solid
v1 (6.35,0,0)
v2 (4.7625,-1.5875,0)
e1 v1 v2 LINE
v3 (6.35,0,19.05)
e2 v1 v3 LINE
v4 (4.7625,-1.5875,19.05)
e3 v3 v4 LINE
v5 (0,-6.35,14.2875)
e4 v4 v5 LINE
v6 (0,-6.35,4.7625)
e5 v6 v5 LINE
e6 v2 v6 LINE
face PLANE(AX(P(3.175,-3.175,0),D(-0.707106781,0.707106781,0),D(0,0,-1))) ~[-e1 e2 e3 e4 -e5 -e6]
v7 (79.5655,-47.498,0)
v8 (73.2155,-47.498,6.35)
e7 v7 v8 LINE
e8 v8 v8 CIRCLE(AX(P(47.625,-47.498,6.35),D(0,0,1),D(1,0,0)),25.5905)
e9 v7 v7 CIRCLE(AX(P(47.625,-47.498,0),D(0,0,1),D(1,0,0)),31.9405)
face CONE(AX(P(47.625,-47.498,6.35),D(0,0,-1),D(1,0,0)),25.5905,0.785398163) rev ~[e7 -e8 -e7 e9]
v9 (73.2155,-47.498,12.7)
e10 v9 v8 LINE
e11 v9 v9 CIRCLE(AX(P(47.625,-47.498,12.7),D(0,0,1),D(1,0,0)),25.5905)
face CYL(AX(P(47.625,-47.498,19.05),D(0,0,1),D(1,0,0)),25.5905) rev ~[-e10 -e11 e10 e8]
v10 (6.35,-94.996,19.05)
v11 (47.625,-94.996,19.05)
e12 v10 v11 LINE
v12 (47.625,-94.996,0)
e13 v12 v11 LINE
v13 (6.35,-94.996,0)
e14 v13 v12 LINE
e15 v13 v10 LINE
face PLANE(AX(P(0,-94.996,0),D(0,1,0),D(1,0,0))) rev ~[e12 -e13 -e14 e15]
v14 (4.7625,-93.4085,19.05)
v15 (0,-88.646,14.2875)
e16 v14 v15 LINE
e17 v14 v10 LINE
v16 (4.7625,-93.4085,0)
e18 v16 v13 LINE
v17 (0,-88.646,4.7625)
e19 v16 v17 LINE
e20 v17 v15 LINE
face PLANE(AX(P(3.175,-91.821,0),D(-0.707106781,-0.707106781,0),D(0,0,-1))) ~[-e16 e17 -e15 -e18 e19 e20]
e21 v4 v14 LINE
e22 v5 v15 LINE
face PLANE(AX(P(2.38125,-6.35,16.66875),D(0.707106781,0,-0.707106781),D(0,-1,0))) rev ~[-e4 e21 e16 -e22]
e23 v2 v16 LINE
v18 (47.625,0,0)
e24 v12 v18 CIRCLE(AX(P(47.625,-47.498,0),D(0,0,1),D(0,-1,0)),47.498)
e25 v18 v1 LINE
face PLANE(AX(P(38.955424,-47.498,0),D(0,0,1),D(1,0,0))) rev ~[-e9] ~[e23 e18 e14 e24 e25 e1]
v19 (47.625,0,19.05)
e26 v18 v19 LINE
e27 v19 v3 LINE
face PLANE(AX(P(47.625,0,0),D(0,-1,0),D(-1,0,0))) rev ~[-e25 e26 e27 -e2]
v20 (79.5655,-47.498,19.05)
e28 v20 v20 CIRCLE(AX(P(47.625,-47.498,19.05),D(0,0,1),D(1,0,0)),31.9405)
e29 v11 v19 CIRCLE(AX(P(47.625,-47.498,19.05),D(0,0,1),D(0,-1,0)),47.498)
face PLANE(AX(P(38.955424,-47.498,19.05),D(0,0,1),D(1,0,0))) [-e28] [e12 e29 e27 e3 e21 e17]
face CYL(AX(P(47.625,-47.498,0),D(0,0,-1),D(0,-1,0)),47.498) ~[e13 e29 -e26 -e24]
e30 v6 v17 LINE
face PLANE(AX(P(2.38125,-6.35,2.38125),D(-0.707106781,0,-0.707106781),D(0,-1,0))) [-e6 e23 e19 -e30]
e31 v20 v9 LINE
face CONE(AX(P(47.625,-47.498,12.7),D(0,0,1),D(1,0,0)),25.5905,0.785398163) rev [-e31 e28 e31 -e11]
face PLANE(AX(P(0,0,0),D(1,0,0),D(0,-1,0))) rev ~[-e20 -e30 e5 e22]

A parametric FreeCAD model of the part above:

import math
import FreeCAD as App
import Part
import Sketcher

V = App.Vector
Q = App.Units.Quantity


def edges_at(feature, points):
    """Names of the edges that pass closest to the given points."""
    edges = feature.Shape.Edges
    near = lambda p: min(range(len(edges)), key=lambda i: edges[i].distToShape(Part.Vertex(*p))[0])
    return sorted({f"Edge{near(p) + 1}" for p in points})

doc = App.newDocument("Part")
body = doc.addObject("PartDesign::Body", "Body")

# Sketch on XY plane
sketch1 = body.newObject("Sketcher::SketchObject", "Sketch")
sketch1.AttachmentSupport = (doc.getObject("XY_Plane"), [""])
sketch1.MapMode = "FlatFace"
sketch1.addGeometry([
    Part.LineSegment(V(48, 0, 0), V(0, 0, 0)),
    Part.LineSegment(V(0, 0, 0), V(0, -95, 0)),
    Part.LineSegment(V(0, -95, 0), V(48, -95, 0)),
    Part.ArcOfCircle(Part.Circle(V(48, -47, 0), V(0, 0, 1), 47), math.radians(-90), math.radians(90)),
], False)
sketch1.addConstraint([
    Sketcher.Constraint("Coincident", 0, 2, 1, 1),
    Sketcher.Constraint("Coincident", 1, 2, 2, 1),
    Sketcher.Constraint("Tangent", 2, 2, 3, 1),
    Sketcher.Constraint("Tangent", 3, 2, 0, 1),
    Sketcher.Constraint("Horizontal", 0),
    Sketcher.Constraint("Vertical", 1),
    Sketcher.Constraint("Horizontal", 2),
    Sketcher.Constraint("Coincident", 0, 2, -1, 1),
    Sketcher.Constraint("Radius", 3, Q("1.87 in")),
    Sketcher.Constraint("DistanceX", 0, 2, 0, 1, Q("1.875 in")),
])
pad1 = body.newObject("PartDesign::Pad", "Pad")
pad1.Profile = sketch1
pad1.Length = Q("0.75 in")

# Sketch on XY plane
sketch2 = body.newObject("Sketcher::SketchObject", "Sketch001")
sketch2.AttachmentSupport = (doc.getObject("XY_Plane"), [""])
sketch2.MapMode = "FlatFace"
sketch2.AttachmentOffset = App.Placement(V(0, 0, 0.75 * 25.4), App.Rotation())
sketch2.addGeometry(Part.Circle(V(48, -47, 0), V(0, 0, 1), 26), False)
sketch2.addConstraint([
    Sketcher.Constraint("Diameter", 0, Q("2.015 in")),
    Sketcher.Constraint("DistanceY", 0, 3, -1, 1, Q("1.87 in")),
    Sketcher.Constraint("DistanceX", -1, 1, 0, 3, Q("1.875 in")),
])
pocket1 = body.newObject("PartDesign::Pocket", "Pocket")
pocket1.Profile = sketch2
pocket1.Type = "ThroughAll"
doc.recompute()

chamfer = body.newObject("PartDesign::Chamfer", "Chamfer")
chamfer.Base = (pocket1, edges_at(pocket1, [
    (0, 0, 9.525),
    (0, -94.996, 9.525),
    (22.035, -47.498, 19.05),
    (22.035, -47.498, 0),
]))
chamfer.Size = Q("0.25 in")
doc.recompute()

chamfer2 = body.newObject("PartDesign::Chamfer", "Chamfer001")
chamfer2.Base = (chamfer, edges_at(chamfer, [(0, -47.498, 19.05), (0, -47.498, 0)]))
chamfer2.Size = Q("0.1875 in")

doc.recompute()
